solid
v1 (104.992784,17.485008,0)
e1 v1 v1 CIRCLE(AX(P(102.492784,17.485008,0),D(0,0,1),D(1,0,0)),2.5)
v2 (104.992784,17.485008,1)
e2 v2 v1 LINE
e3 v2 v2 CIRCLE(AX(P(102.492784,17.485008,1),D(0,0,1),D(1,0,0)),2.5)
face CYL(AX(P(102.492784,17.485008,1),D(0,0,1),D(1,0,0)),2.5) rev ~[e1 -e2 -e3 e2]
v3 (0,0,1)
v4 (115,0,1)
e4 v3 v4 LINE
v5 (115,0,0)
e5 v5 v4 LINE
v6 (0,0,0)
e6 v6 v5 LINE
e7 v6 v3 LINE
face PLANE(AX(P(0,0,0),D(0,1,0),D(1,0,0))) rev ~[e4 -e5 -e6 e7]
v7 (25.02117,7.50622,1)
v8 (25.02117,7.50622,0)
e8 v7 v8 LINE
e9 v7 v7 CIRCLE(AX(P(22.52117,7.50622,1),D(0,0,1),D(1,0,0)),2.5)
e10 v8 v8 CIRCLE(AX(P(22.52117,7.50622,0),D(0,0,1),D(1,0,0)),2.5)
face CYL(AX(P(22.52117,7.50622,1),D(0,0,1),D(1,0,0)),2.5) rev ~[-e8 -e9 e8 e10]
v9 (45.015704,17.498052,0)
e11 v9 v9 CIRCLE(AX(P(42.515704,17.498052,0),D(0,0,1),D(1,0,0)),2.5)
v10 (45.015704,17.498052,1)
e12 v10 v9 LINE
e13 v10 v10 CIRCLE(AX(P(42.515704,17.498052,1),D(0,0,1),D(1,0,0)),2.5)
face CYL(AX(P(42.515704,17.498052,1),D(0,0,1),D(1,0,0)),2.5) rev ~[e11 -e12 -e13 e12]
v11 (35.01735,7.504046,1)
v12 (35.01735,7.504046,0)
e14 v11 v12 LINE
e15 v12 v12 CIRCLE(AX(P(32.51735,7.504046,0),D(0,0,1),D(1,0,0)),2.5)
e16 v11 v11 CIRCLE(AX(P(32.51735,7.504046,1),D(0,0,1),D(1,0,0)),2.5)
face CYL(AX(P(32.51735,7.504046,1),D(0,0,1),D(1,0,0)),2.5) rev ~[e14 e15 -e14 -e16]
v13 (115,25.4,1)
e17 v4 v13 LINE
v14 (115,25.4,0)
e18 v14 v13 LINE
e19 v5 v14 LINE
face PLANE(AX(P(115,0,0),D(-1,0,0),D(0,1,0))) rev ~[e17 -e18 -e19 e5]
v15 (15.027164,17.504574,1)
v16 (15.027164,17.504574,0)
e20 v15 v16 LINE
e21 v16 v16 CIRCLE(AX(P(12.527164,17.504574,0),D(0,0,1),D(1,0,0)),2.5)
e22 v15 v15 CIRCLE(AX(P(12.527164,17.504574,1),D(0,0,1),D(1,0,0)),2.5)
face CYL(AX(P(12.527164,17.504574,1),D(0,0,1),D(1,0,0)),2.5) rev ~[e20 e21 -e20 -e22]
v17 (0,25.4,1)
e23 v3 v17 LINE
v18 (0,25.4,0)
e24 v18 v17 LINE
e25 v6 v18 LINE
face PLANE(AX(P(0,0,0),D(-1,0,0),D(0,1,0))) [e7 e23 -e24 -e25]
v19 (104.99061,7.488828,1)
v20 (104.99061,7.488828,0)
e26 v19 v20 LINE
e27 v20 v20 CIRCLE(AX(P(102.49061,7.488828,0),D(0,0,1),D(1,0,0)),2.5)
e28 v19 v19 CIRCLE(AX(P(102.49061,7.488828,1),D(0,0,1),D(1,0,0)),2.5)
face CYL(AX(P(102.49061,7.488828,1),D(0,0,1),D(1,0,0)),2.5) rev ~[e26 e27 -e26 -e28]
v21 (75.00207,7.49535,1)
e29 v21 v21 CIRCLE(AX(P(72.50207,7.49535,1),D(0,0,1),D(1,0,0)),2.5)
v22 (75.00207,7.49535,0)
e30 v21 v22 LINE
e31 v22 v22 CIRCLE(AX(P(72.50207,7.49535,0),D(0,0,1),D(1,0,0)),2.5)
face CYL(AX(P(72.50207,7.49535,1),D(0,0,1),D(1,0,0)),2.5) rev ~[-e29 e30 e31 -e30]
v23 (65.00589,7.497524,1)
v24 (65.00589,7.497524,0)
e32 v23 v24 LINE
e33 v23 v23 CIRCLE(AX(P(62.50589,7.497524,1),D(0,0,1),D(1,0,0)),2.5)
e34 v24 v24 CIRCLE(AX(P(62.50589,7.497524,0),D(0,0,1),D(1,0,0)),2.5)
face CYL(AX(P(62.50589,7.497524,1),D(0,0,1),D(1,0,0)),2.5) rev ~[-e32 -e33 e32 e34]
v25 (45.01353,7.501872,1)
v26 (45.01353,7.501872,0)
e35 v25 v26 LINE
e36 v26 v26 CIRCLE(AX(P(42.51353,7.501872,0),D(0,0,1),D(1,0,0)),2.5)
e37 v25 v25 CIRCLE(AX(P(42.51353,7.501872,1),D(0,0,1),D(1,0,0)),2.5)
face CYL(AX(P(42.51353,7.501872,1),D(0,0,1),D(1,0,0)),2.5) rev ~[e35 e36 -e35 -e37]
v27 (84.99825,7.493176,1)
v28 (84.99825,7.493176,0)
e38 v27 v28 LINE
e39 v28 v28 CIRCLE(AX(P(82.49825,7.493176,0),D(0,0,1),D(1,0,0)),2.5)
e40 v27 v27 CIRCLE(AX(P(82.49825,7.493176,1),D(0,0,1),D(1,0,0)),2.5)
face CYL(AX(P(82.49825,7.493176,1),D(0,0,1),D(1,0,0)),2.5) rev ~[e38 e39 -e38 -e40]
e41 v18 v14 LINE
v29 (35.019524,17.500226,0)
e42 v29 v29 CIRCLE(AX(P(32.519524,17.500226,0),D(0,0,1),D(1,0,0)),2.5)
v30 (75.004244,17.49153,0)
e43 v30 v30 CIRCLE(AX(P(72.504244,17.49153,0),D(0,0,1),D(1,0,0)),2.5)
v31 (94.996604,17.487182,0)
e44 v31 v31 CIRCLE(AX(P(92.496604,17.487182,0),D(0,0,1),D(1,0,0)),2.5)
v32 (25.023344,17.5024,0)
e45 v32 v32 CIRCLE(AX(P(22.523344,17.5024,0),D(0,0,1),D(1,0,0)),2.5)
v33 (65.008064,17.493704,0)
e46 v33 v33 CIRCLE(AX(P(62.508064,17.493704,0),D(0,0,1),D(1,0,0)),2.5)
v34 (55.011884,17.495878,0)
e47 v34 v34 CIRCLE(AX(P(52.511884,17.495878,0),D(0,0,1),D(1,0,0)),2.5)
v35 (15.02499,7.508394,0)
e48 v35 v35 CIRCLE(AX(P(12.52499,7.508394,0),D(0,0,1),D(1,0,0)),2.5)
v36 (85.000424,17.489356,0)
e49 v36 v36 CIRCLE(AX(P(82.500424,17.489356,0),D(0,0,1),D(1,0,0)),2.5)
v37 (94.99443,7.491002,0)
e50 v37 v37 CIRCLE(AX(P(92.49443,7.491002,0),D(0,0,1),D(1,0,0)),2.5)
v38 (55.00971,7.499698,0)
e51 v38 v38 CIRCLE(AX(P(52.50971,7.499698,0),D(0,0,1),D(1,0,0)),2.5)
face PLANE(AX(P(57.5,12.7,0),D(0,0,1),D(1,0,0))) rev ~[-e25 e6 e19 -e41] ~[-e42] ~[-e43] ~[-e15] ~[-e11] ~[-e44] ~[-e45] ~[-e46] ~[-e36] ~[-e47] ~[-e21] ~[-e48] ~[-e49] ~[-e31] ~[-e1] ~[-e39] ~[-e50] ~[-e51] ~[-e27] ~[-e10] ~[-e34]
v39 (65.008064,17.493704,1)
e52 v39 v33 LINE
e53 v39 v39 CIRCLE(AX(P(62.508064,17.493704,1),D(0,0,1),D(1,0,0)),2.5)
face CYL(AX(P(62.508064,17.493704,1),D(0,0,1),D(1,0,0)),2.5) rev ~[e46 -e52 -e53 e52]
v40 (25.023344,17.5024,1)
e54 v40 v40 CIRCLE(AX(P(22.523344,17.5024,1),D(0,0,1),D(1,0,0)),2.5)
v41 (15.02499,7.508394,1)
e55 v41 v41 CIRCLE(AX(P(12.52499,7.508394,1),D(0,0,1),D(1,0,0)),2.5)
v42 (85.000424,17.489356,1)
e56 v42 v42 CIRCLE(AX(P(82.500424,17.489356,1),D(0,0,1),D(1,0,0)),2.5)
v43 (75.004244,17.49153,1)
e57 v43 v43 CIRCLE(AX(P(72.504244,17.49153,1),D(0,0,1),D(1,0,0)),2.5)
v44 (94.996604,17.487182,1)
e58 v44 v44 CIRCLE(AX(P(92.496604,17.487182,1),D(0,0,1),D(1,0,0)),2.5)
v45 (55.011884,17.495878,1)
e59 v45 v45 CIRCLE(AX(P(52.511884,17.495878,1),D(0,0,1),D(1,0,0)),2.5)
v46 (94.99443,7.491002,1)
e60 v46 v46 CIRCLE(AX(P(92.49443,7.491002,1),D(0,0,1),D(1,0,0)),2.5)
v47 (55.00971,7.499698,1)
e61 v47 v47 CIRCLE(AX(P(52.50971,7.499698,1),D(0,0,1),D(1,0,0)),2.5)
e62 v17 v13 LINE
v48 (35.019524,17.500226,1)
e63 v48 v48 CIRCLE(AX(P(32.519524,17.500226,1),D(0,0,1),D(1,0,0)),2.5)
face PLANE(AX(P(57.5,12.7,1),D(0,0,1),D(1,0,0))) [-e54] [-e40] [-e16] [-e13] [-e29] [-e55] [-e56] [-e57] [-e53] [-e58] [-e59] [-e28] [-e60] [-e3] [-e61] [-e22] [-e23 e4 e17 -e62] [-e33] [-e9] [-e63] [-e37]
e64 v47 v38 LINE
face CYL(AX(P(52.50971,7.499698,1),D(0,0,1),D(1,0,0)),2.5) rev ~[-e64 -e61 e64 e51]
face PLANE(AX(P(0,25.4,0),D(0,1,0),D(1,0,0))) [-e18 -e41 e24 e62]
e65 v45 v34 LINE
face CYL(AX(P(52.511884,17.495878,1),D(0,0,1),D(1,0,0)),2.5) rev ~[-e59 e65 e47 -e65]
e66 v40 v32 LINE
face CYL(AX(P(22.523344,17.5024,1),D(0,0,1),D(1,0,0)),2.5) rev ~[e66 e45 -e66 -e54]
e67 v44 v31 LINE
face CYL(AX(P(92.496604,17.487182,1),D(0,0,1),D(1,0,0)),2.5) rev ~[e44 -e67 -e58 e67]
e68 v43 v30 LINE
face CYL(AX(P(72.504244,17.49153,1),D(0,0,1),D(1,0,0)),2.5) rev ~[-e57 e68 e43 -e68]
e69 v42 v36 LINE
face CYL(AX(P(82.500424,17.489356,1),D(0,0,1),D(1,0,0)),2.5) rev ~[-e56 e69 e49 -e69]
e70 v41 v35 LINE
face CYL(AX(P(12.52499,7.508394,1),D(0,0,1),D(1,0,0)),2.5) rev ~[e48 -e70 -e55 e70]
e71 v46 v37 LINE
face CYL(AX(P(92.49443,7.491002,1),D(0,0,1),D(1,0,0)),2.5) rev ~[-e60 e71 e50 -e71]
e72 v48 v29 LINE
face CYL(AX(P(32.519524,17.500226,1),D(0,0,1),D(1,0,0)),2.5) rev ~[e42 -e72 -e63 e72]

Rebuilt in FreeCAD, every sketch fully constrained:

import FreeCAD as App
import Part
import Sketcher
from FreeCAD import Vector
Q = App.Units.Quantity


def add_polygon(sketch, points):
    """Adds a closed chain of lines whose ends are joined by coincident constraints."""
    first, n = sketch.GeometryCount, len(points)
    for a, b in zip(points, points[1:] + points[:1]):
        sketch.addGeometry(Part.LineSegment(App.Vector(*a, 0), App.Vector(*b, 0)), False)
    for i in range(n):
        sketch.addConstraint(Sketcher.Constraint("Coincident", first + i, 2, first + (i + 1) % n, 1))

doc = App.newDocument("Part")
params = doc.addObject("Spreadsheet::Sheet", "Params")
for row, (alias, value) in enumerate([
    ("sketch1_width", "115 mm"),
    ("sketch1_height", "25.4 mm"),
    ("pad1_length", "1 mm"),
    ("sketch2_diameter", "5 mm"),
    ("pocket1_length", "5 mm"),
], start=1):
    params.set(f"A{row}", alias)
    params.set(f"B{row}", "=" + value)
    params.setAlias(f"B{row}", alias)

body = doc.addObject("PartDesign::Body", "Body")

# Sketch on XY plane
sketch1 = doc.addObject("Sketcher::SketchObject", "Sketch")
body.addObject(sketch1)
sketch1.AttachmentSupport = (doc.XY_Plane, [""])
sketch1.MapMode = "FlatFace"
add_polygon(sketch1, [(0, 25), (0, 0), (115, 0), (115, 25)])  # lines 0-3
sketch1.addConstraint([
    Sketcher.Constraint("Vertical", 0),
    Sketcher.Constraint("Horizontal", 1),
    Sketcher.Constraint("Vertical", 2),
    Sketcher.Constraint("Horizontal", 3),
    Sketcher.Constraint("Coincident", 0, 2, -1, 1),
    Sketcher.Constraint("DistanceX", 1, 1, 1, 2, Q("115 mm")),
    Sketcher.Constraint("DistanceY", 0, 2, 0, 1, Q("25.4 mm")),
])
sketch1.setExpression("Constraints[9]", "Params.sketch1_width")
sketch1.setExpression("Constraints[10]", "Params.sketch1_height")
pad1 = doc.addObject("PartDesign::Pad", "Pad")
body.addObject(pad1)
pad1.Profile = sketch1
pad1.setExpression("Length", "Params.pad1_length")

# Sketch on XY plane
sketch2 = doc.addObject("Sketcher::SketchObject", "Sketch001")
body.addObject(sketch2)
sketch2.AttachmentSupport = (doc.XY_Plane, [""])
sketch2.MapMode = "FlatFace"
sketch2.AttachmentOffset = App.Placement(Vector(0, 0, 1), App.Rotation())
sketch2.addGeometry([
    Part.Circle(Vector(12.5, 17.5, 0), Vector(0, 0, 1), 2.5),  # 0
    Part.Circle(Vector(22.5, 17.5, 0), Vector(0, 0, 1), 2.5),  # 1
    Part.Circle(Vector(32.5, 17.5, 0), Vector(0, 0, 1), 2.5),  # 2
    Part.Circle(Vector(42.5, 17.5, 0), Vector(0, 0, 1), 2.5),  # 3
    Part.Circle(Vector(52.5, 17.5, 0), Vector(0, 0, 1), 2.5),  # 4
    Part.Circle(Vector(62.5, 17.5, 0), Vector(0, 0, 1), 2.5),  # 5
    Part.Circle(Vector(72.5, 17.5, 0), Vector(0, 0, 1), 2.5),  # 6
    Part.Circle(Vector(82.5, 17.5, 0), Vector(0, 0, 1), 2.5),  # 7
    Part.Circle(Vector(92.5, 17.5, 0), Vector(0, 0, 1), 2.5),  # 8
    Part.Circle(Vector(102.5, 17.5, 0), Vector(0, 0, 1), 2.5),  # 9
    Part.Circle(Vector(12.5, 7.5, 0), Vector(0, 0, 1), 2.5),  # 10
    Part.Circle(Vector(22.5, 7.5, 0), Vector(0, 0, 1), 2.5),  # 11
    Part.Circle(Vector(32.5, 7.5, 0), Vector(0, 0, 1), 2.5),  # 12
    Part.Circle(Vector(42.5, 7.5, 0), Vector(0, 0, 1), 2.5),  # 13
    Part.Circle(Vector(52.5, 7.5, 0), Vector(0, 0, 1), 2.5),  # 14
    Part.Circle(Vector(62.5, 7.5, 0), Vector(0, 0, 1), 2.5),  # 15
    Part.Circle(Vector(72.5, 7.5, 0), Vector(0, 0, 1), 2.5),  # 16
    Part.Circle(Vector(82.5, 7.5, 0), Vector(0, 0, 1), 2.5),  # 17
    Part.Circle(Vector(92.5, 7.5, 0), Vector(0, 0, 1), 2.5),  # 18
    Part.Circle(Vector(102.5, 7.5, 0), Vector(0, 0, 1), 2.5),  # 19
], False)
sketch2.addConstraint([
    Sketcher.Constraint("Equal", 0, 1),
    Sketcher.Constraint("Equal", 1, 2),
    Sketcher.Constraint("Equal", 2, 3),
    Sketcher.Constraint("Equal", 3, 4),
    Sketcher.Constraint("Equal", 4, 5),
    Sketcher.Constraint("Equal", 5, 6),
    Sketcher.Constraint("Equal", 6, 7),
    Sketcher.Constraint("Equal", 7, 8),
    Sketcher.Constraint("Equal", 8, 9),
    Sketcher.Constraint("Equal", 9, 10),
    Sketcher.Constraint("Equal", 10, 11),
    Sketcher.Constraint("Equal", 11, 12),
    Sketcher.Constraint("Equal", 12, 13),
    Sketcher.Constraint("Equal", 13, 14),
    Sketcher.Constraint("Equal", 14, 15),
    Sketcher.Constraint("Equal", 15, 16),
    Sketcher.Constraint("Equal", 16, 17),
    Sketcher.Constraint("Equal", 17, 18),
    Sketcher.Constraint("Equal", 18, 19),
    Sketcher.Constraint("Diameter", 0, Q("5 mm")),
    Sketcher.Constraint("DistanceY", -1, 1, 1, 3, Q("17.5024 mm")),
    Sketcher.Constraint("DistanceY", -1, 1, 14, 3, Q("7.499698 mm")),
    Sketcher.Constraint("DistanceX", 0, 3, 5, 3, Q("49.9809 mm")),
    Sketcher.Constraint("DistanceX", 1, 3, 6, 3, Q("49.9809 mm")),
    Sketcher.Constraint("DistanceX", 2, 3, 7, 3, Q("49.9809 mm")),
    Sketcher.Constraint("DistanceX", 3, 3, 8, 3, Q("49.9809 mm")),
    Sketcher.Constraint("DistanceX", 4, 3, 9, 3, Q("49.9809 mm")),
    Sketcher.Constraint("DistanceY", -1, 1, 4, 3, Q("17.495878 mm")),
    Sketcher.Constraint("DistanceY", -1, 1, 6, 3, Q("17.49153 mm")),
    Sketcher.Constraint("DistanceY", -1, 1, 9, 3, Q("17.485008 mm")),
    Sketcher.Constraint("DistanceX", -1, 1, 10, 3, Q("12.52499 mm")),
    Sketcher.Constraint("DistanceX", -1, 1, 11, 3, Q("22.52117 mm")),
    Sketcher.Constraint("DistanceY", -1, 1, 11, 3, Q("7.50622 mm")),
    Sketcher.Constraint("DistanceX", -1, 1, 12, 3, Q("32.51735 mm")),
    Sketcher.Constraint("DistanceX", -1, 1, 13, 3, Q("42.51353 mm")),
    Sketcher.Constraint("DistanceY", -1, 1, 13, 3, Q("7.501872 mm")),
    Sketcher.Constraint("DistanceX", -1, 1, 14, 3, Q("52.50971 mm")),
    Sketcher.Constraint("DistanceX", -1, 1, 15, 3, Q("62.50589 mm")),
    Sketcher.Constraint("DistanceX", -1, 1, 16, 3, Q("72.50207 mm")),
    Sketcher.Constraint("DistanceY", -1, 1, 16, 3, Q("7.49535 mm")),
    Sketcher.Constraint("DistanceX", -1, 1, 17, 3, Q("82.49825 mm")),
    Sketcher.Constraint("DistanceX", -1, 1, 18, 3, Q("92.49443 mm")),
    Sketcher.Constraint("DistanceX", -1, 1, 19, 3, Q("102.49061 mm")),
    Sketcher.Constraint("DistanceX", 0, 3, 1, 3, Q("9.99618 mm")),
    Sketcher.Constraint("DistanceX", 1, 3, 2, 3, Q("9.99618 mm")),
    Sketcher.Constraint("DistanceY", 2, 3, 0, 3, Q("0.004348 mm")),
    Sketcher.Constraint("DistanceX", 2, 3, 3, 3, Q("9.99618 mm")),
    Sketcher.Constraint("DistanceY", 3, 3, 1, 3, Q("0.004348 mm")),
    Sketcher.Constraint("DistanceX", 3, 3, 4, 3, Q("9.99618 mm")),
    Sketcher.Constraint("DistanceY", 4, 3, 2, 3, Q("0.004348 mm")),
    Sketcher.Constraint("DistanceY", 5, 3, 3, 3, Q("0.004348 mm")),
    Sketcher.Constraint("DistanceY", 7, 3, 5, 3, Q("0.004348 mm")),
    Sketcher.Constraint("DistanceY", 8, 3, 6, 3, Q("0.004348 mm")),
    Sketcher.Constraint("DistanceY", 10, 3, 0, 3, Q("9.99618 mm")),
    Sketcher.Constraint("DistanceY", 12, 3, 2, 3, Q("9.99618 mm")),
    Sketcher.Constraint("DistanceY", 15, 3, 5, 3, Q("9.99618 mm")),
    Sketcher.Constraint("DistanceY", 17, 3, 7, 3, Q("9.99618 mm")),
    Sketcher.Constraint("DistanceY", 18, 3, 8, 3, Q("9.99618 mm")),
    Sketcher.Constraint("DistanceY", 19, 3, 9, 3, Q("9.99618 mm")),
    Sketcher.Constraint("DistanceX", -1, 1, 0, 3, Q("12.527164 mm")),
])
sketch2.setExpression("Constraints[19]", "Params.sketch2_diameter")
pocket1 = doc.addObject("PartDesign::Pocket", "Pocket")
body.addObject(pocket1)
pocket1.Profile = sketch2
pocket1.setExpression("Length", "Params.pocket1_length")

doc.recompute()
